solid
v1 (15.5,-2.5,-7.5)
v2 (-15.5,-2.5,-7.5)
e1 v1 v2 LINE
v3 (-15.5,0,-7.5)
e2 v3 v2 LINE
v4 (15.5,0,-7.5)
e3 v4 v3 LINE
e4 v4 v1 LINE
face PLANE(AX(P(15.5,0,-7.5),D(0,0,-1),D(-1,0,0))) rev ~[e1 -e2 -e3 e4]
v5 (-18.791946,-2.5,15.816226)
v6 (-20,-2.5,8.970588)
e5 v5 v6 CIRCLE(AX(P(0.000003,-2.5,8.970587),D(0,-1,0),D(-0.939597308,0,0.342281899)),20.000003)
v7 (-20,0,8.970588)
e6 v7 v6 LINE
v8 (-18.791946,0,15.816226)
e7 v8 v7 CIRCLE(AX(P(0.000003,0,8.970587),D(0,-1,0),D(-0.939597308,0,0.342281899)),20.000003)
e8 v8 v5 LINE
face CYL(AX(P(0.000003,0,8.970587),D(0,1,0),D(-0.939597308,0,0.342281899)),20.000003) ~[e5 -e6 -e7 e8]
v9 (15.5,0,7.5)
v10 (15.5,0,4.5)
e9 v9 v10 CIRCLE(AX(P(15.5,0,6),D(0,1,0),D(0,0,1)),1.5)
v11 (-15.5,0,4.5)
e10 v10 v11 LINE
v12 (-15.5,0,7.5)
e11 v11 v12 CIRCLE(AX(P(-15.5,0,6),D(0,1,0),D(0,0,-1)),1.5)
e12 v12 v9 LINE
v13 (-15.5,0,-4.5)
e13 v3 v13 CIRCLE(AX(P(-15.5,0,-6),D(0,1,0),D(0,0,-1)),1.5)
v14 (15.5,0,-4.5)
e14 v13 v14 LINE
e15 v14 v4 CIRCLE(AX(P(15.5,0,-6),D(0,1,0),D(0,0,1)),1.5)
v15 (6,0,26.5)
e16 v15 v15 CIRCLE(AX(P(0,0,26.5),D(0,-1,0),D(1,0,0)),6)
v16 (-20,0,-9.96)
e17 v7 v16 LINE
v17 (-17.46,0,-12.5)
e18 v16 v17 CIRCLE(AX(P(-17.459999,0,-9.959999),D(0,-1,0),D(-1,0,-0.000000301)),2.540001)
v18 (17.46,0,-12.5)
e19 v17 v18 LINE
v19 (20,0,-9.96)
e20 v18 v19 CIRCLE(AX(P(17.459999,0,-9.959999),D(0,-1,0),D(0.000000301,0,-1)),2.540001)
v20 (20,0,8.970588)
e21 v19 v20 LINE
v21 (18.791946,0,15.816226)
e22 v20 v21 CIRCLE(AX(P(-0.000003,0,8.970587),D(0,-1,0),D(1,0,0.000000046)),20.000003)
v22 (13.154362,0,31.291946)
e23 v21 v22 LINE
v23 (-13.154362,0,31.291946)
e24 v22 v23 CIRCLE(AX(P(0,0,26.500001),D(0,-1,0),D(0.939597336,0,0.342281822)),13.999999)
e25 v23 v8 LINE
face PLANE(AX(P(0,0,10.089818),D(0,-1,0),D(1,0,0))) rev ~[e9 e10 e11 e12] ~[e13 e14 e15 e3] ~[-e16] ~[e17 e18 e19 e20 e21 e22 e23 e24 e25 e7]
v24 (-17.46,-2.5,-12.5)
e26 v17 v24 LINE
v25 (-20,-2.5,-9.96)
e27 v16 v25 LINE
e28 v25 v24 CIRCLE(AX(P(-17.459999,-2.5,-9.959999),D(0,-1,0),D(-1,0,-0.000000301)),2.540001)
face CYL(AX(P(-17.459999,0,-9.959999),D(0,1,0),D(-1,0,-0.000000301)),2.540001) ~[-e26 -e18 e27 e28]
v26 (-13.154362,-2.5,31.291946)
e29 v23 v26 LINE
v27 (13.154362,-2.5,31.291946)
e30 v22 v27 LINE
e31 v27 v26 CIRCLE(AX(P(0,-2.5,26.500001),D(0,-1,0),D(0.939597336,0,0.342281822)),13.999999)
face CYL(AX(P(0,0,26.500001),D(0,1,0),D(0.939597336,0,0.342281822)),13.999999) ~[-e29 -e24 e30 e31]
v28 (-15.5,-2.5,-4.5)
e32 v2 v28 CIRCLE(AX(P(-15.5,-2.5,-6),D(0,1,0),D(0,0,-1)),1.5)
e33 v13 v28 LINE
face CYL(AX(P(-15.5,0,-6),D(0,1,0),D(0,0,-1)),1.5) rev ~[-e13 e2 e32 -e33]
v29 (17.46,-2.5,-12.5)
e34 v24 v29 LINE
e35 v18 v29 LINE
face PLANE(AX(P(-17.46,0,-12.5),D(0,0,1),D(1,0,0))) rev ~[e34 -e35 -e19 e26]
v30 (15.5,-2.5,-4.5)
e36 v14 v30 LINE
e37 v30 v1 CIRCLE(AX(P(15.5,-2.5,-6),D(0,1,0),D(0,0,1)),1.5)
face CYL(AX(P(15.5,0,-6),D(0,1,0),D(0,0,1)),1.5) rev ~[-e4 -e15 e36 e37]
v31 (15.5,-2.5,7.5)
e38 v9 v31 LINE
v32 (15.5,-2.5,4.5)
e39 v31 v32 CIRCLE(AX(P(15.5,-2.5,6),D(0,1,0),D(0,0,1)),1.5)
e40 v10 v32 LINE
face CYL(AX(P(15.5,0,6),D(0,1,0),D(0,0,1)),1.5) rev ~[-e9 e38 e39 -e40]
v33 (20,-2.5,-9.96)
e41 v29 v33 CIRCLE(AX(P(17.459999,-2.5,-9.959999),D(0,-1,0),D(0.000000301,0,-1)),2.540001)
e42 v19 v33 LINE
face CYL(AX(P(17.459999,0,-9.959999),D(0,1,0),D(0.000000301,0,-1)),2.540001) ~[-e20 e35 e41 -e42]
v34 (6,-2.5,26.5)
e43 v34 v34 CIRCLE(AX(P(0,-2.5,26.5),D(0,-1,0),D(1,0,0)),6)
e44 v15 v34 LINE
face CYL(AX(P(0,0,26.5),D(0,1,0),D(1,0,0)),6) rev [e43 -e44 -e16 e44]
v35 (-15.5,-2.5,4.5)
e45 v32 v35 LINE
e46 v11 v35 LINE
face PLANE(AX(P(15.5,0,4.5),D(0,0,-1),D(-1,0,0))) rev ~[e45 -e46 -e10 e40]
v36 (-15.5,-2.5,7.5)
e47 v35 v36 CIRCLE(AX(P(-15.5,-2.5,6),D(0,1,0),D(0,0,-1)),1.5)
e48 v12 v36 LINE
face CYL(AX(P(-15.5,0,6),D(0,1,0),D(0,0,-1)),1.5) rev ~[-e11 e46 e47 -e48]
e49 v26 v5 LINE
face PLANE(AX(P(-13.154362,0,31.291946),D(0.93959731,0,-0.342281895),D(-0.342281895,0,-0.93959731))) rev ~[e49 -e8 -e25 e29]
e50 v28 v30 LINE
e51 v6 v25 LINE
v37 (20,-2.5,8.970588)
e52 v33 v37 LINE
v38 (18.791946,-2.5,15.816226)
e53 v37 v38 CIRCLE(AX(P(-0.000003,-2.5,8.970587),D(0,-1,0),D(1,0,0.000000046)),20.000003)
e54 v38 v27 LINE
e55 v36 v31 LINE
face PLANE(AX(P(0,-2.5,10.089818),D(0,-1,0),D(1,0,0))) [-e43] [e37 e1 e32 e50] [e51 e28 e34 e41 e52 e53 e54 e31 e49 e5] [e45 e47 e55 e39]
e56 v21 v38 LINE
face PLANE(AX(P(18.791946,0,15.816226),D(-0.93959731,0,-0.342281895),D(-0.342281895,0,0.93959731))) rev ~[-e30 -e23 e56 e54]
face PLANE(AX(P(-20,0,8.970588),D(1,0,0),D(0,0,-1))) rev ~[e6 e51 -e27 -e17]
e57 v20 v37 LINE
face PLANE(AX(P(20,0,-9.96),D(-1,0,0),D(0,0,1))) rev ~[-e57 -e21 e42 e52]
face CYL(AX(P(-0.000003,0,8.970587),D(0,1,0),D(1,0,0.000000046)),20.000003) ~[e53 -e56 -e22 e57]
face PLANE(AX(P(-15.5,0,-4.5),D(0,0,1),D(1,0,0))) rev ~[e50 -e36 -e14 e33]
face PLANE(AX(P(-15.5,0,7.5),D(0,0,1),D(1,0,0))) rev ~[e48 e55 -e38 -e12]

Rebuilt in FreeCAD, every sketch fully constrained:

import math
import FreeCAD as App
import Part
import Sketcher
Q = App.Units.Quantity


def edges_at(feature, points):
    """Names of the edges that pass closest to the given points."""
    edges = feature.Shape.Edges
    near = lambda p: min(range(len(edges)), key=lambda i: edges[i].distToShape(Part.Vertex(*p))[0])
    return sorted({f"Edge{near(p) + 1}" for p in points})

doc = App.newDocument("Part")
body = doc.addObject("PartDesign::Body", "Body")

sketch1 = body.newObject("Sketcher::SketchObject", "Sketch")
sketch1.AttachmentSupport = (doc.getObject("XZ_Plane"), [""])
sketch1.MapMode = "FlatFace"
sketch1.addGeometry([
    Part.ArcOfCircle(Part.Circle(App.Vector(-17.5, -10, 0), App.Vector(0, 0, 1), 2.5), math.radians(-180), math.radians(-90)),
    Part.LineSegment(App.Vector(-17.5, -12.5, 0), App.Vector(17.5, -12.5, 0)),
    Part.ArcOfCircle(Part.Circle(App.Vector(17.5, -10, 0), App.Vector(0, 0, 1), 2.5), math.radians(-90), math.radians(0)),
    Part.LineSegment(App.Vector(20, -10, 0), App.Vector(20, 9, 0)),
    Part.ArcOfCircle(Part.Circle(App.Vector(0, 9, 0), App.Vector(0, 0, 1), 20), math.radians(0), math.radians(20)),
    Part.LineSegment(App.Vector(18.8, 15.8, 0), App.Vector(13.2, 31.3, 0)),
    Part.ArcOfCircle(Part.Circle(App.Vector(0, 26.5, 0), App.Vector(0, 0, 1), 14), math.radians(20), math.radians(160)),
    Part.LineSegment(App.Vector(-13.2, 31.3, 0), App.Vector(-18.8, 15.8, 0)),
    Part.ArcOfCircle(Part.Circle(App.Vector(0, 9, 0), App.Vector(0, 0, 1), 20), math.radians(160), math.radians(180)),
    Part.LineSegment(App.Vector(-20, 9, 0), App.Vector(-20, -10, 0)),
    Part.LineSegment(App.Vector(15.5, -7.5, 0), App.Vector(-15.5, -7.5, 0)),
    Part.ArcOfCircle(Part.Circle(App.Vector(-15.5, -6, 0), App.Vector(0, 0, 1), 1.5), math.radians(90), math.radians(270)),
    Part.LineSegment(App.Vector(-15.5, -4.5, 0), App.Vector(15.5, -4.5, 0)),
    Part.ArcOfCircle(Part.Circle(App.Vector(15.5, -6, 0), App.Vector(0, 0, 1), 1.5), math.radians(-90), math.radians(90)),
    Part.ArcOfCircle(Part.Circle(App.Vector(15.5, 6, 0), App.Vector(0, 0, 1), 1.5), math.radians(-90), math.radians(90)),
    Part.LineSegment(App.Vector(15.5, 4.5, 0), App.Vector(-15.5, 4.5, 0)),
    Part.ArcOfCircle(Part.Circle(App.Vector(-15.5, 6, 0), App.Vector(0, 0, 1), 1.5), math.radians(90), math.radians(270)),
    Part.LineSegment(App.Vector(-15.5, 7.5, 0), App.Vector(15.5, 7.5, 0)),
    Part.Circle(App.Vector(0, 26.5, 0), App.Vector(0, 0, 1), 6),
], False)
sketch1.addConstraint([
    Sketcher.Constraint("Tangent", 0, 2, 1, 1),
    Sketcher.Constraint("Tangent", 1, 2, 2, 1),
    Sketcher.Constraint("Tangent", 2, 2, 3, 1),
    Sketcher.Constraint("Tangent", 3, 2, 4, 1),
    Sketcher.Constraint("Tangent", 4, 2, 5, 1),
    Sketcher.Constraint("Tangent", 5, 2, 6, 1),
    Sketcher.Constraint("Tangent", 6, 2, 7, 1),
    Sketcher.Constraint("Tangent", 7, 2, 8, 1),
    Sketcher.Constraint("Tangent", 8, 2, 9, 1),
    Sketcher.Constraint("Tangent", 9, 2, 0, 1),
    Sketcher.Constraint("Tangent", 10, 2, 11, 2),
    Sketcher.Constraint("Tangent", 11, 1, 12, 1),
    Sketcher.Constraint("Tangent", 12, 2, 13, 2),
    Sketcher.Constraint("Tangent", 13, 1, 10, 1),
    Sketcher.Constraint("Tangent", 14, 1, 15, 1),
    Sketcher.Constraint("Tangent", 15, 2, 16, 2),
    Sketcher.Constraint("Tangent", 16, 1, 17, 1),
    Sketcher.Constraint("Tangent", 17, 2, 14, 2),
    Sketcher.Constraint("Horizontal", 1),
    Sketcher.Constraint("Vertical", 3),
    Sketcher.Constraint("Vertical", 9),
    Sketcher.Constraint("Horizontal", 10),
    Sketcher.Constraint("Horizontal", 12),
    Sketcher.Constraint("Horizontal", 15),
    Sketcher.Constraint("Horizontal", 17),
    Sketcher.Constraint("Coincident", 8, 3, 4, 3),
    Sketcher.Constraint("Coincident", 18, 3, 6, 3),
    Sketcher.Constraint("Equal", 0, 2),
    Sketcher.Constraint("Equal", 4, 8),
    Sketcher.Constraint("Equal", 13, 14),
    Sketcher.Constraint("Symmetric", 11, 3, 14, 3, -1, 1),
    Sketcher.Constraint("Symmetric", 5, 2, 6, 2, -2),
    Sketcher.Constraint("Vertical", 13, 3, 14, 3),
    Sketcher.Constraint("Vertical", 11, 3, 16, 3),
    Sketcher.Constraint("Diameter", 18, Q("12 mm")),
    Sketcher.Constraint("Radius", 6, Q("13.999999 mm")),
    Sketcher.Constraint("Radius", 11, Q("1.5 mm")),
    Sketcher.Constraint("DistanceX", 10, 2, 10, 1, Q("31 mm")),
    Sketcher.Constraint("Radius", 0, Q("2.540001 mm")),
    Sketcher.Constraint("DistanceY", 11, 3, -1, 1, Q("6 mm")),
    Sketcher.Constraint("DistanceX", -1, 1, 2, 2, Q("20 mm")),
    Sketcher.Constraint("DistanceY", 0, 2, 10, 2, Q("5 mm")),
    Sketcher.Constraint("DistanceY", -1, 1, 6, 3, Q("26.500001 mm")),
    Sketcher.Constraint("DistanceY", 3, 1, 3, 2, Q("18.930588 mm")),
])
pad1 = body.newObject("PartDesign::Pad", "Pad")
pad1.Profile = sketch1
pad1.Length = 2.5
body2 = doc.addObject("PartDesign::Body", "Body001")

sketch2 = body2.newObject("Sketcher::SketchObject", "Sketch001")
sketch2.AttachmentSupport = (doc.getObject("XZ_Plane001"), [""])
sketch2.MapMode = "FlatFace"
sketch2.addGeometry(Part.Circle(App.Vector(0, 26, 0), App.Vector(0, 0, 1), 6), False)
sketch2.addConstraint([
    Sketcher.Constraint("PointOnObject", 0, 3, -2),
    Sketcher.Constraint("Diameter", 0, Q("12 mm")),
    Sketcher.Constraint("DistanceY", -1, 1, 0, 3, Q("26.5 mm")),
])
pad2 = body2.newObject("PartDesign::Pad", "Pad001")
pad2.Profile = sketch2
pad2.Length = 8
doc.recompute()

fillet = body2.newObject("PartDesign::Fillet", "Fillet")
fillet.Base = (pad2, edges_at(pad2, [(-6, -8, 26.5)]))
fillet.Radius = 1.54
body2.Visibility = False

doc.recompute()
